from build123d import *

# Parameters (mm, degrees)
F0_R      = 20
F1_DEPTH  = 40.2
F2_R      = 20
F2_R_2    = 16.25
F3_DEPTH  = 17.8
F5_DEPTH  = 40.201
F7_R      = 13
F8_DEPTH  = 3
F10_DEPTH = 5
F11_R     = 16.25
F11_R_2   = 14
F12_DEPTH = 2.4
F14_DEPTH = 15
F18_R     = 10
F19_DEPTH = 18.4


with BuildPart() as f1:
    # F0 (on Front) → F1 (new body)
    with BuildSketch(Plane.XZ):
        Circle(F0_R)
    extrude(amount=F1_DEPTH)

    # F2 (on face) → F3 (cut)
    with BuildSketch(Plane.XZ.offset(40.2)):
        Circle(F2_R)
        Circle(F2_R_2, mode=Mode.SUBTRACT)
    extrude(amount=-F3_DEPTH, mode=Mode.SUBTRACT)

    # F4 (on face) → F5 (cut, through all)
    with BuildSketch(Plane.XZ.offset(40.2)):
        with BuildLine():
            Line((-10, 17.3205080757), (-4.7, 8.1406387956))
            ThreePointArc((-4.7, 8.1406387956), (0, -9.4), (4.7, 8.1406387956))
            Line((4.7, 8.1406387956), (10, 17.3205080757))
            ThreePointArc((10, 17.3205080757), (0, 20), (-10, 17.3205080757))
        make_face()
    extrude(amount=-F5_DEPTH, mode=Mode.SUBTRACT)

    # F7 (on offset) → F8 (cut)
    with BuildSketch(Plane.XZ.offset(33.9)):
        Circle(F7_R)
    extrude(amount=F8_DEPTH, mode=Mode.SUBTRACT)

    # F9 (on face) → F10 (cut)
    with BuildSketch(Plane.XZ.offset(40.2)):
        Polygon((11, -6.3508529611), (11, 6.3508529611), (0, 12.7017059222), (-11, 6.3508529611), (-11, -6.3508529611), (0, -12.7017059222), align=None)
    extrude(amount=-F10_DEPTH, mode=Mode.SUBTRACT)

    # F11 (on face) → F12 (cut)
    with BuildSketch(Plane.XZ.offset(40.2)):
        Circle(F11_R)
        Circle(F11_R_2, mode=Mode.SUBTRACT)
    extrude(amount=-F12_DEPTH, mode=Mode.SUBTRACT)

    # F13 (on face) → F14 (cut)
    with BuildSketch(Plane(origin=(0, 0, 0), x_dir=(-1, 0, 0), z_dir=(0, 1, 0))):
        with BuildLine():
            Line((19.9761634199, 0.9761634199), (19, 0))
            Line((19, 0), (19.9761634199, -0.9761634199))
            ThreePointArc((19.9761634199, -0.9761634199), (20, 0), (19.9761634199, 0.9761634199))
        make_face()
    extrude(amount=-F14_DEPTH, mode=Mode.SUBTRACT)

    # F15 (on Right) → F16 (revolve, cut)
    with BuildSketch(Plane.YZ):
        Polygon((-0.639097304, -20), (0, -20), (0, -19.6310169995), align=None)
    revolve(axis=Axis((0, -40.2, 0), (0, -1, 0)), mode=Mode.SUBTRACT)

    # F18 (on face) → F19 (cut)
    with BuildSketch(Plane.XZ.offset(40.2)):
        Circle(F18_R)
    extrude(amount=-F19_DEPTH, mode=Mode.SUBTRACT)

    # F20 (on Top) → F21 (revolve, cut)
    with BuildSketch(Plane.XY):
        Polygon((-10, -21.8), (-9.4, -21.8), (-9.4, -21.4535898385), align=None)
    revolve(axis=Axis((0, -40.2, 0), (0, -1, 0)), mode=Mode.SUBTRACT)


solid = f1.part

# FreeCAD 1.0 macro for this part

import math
import FreeCAD as App
import Part
import Sketcher
from FreeCAD import Vector
Q = App.Units.Quantity


def add_polygon(sketch, points):
    """Adds a closed chain of lines whose ends are joined by coincident constraints."""
    first, n = sketch.GeometryCount, len(points)
    for a, b in zip(points, points[1:] + points[:1]):
        sketch.addGeometry(Part.LineSegment(App.Vector(*a, 0), App.Vector(*b, 0)), False)
    for i in range(n):
        sketch.addConstraint(Sketcher.Constraint("Coincident", first + i, 2, first + (i + 1) % n, 1))

doc = App.newDocument("Part")
body = doc.addObject("PartDesign::Body", "Body")

# Sketch on XZ plane
sketch1 = body.newObject("Sketcher::SketchObject", "Sketch")
sketch1.AttachmentSupport = (doc.getObject("XZ_Plane"), [""])
sketch1.MapMode = "FlatFace"
sketch1.addGeometry(Part.Circle(Vector(0, 0, 0), Vector(0, 0, 1), 20), False)
sketch1.addConstraint([
    Sketcher.Constraint("Coincident", 0, 3, -1, 1),
    Sketcher.Constraint("Diameter", 0, 40.0),
])
pad1 = body.newObject("PartDesign::Pad", "Pad")
pad1.Profile = sketch1
pad1.Length = 40.2

# Sketch on XZ plane
sketch2 = body.newObject("Sketcher::SketchObject", "Sketch001")
sketch2.AttachmentSupport = (doc.getObject("XZ_Plane"), [""])
sketch2.MapMode = "FlatFace"
sketch2.AttachmentOffset = App.Placement(Vector(0, 0, 40.2), App.Rotation())
sketch2.addGeometry([
    Part.Circle(Vector(0, 0, 0), Vector(0, 0, 1), 20),
    Part.Circle(Vector(0, 0, 0), Vector(0, 0, 1), 16),
], False)
sketch2.addConstraint([
    Sketcher.Constraint("Coincident", 0, 3, -1, 1),
    Sketcher.Constraint("Coincident", 1, 3, -1, 1),
    Sketcher.Constraint("Diameter", 0, 40.0),
    Sketcher.Constraint("Diameter", 1, 32.5),
])
pocket1 = body.newObject("PartDesign::Pocket", "Pocket")
pocket1.Profile = sketch2
pocket1.Length = 17.8

# Sketch on XZ plane
sketch3 = body.newObject("Sketcher::SketchObject", "Sketch002")
sketch3.AttachmentSupport = (doc.getObject("XZ_Plane"), [""])
sketch3.MapMode = "FlatFace"
sketch3.AttachmentOffset = App.Placement(Vector(0, 0, 40.2), App.Rotation())
sketch3.addGeometry([
    Part.LineSegment(Vector(-10, 17, 0), Vector(-5, 8, 0)),
    Part.ArcOfCircle(Part.Circle(Vector(0, 0, 0), Vector(0, 0, 1), 9), math.radians(120), math.radians(420)),
    Part.LineSegment(Vector(5, 8, 0), Vector(10, 17, 0)),
    Part.ArcOfCircle(Part.Circle(Vector(0, 0, 0), Vector(0, 0, 1), 20), math.radians(60), math.radians(120)),
], False)
sketch3.addConstraint([
    Sketcher.Constraint("Coincident", 0, 2, 1, 1),
    Sketcher.Constraint("Coincident", 1, 2, 2, 1),
    Sketcher.Constraint("Coincident", 2, 2, 3, 1),
    Sketcher.Constraint("Coincident", 3, 2, 0, 1),
    Sketcher.Constraint("Coincident", 1, 3, -1, 1),
    Sketcher.Constraint("Coincident", 3, 3, -1, 1),
    Sketcher.Constraint("Horizontal", 0, 2, 1, 2),
    Sketcher.Constraint("Horizontal", 2, 2, 3, 2),
    Sketcher.Constraint("Radius", 3, 20.0),
    Sketcher.Constraint("Radius", 1, 9.4),
    Sketcher.Constraint("Angle", 0, Q("-60 deg")),
    Sketcher.Constraint("DistanceX", -1, 1, 2, 2, 10.0),
])
pocket2 = body.newObject("PartDesign::Pocket", "Pocket001")
pocket2.Profile = sketch3
pocket2.Type = "ThroughAll"

# Sketch on XZ plane
sketch4 = body.newObject("Sketcher::SketchObject", "Sketch003")
sketch4.AttachmentSupport = (doc.getObject("XZ_Plane"), [""])
sketch4.MapMode = "FlatFace"
sketch4.AttachmentOffset = App.Placement(Vector(0, 0, 33.9), App.Rotation())
sketch4.addGeometry(Part.Circle(Vector(0, 0, 0), Vector(0, 0, 1), 13), False)
sketch4.addConstraint([
    Sketcher.Constraint("Coincident", 0, 3, -1, 1),
    Sketcher.Constraint("Diameter", 0, 26.0),
])
pocket3 = body.newObject("PartDesign::Pocket", "Pocket002")
pocket3.Profile = sketch4
pocket3.Length = 3
pocket3.Reversed = True

# Sketch on XZ plane
sketch5 = body.newObject("Sketcher::SketchObject", "Sketch004")
sketch5.AttachmentSupport = (doc.getObject("XZ_Plane"), [""])
sketch5.MapMode = "FlatFace"
sketch5.AttachmentOffset = App.Placement(Vector(0, 0, 40.2), App.Rotation())
add_polygon(sketch5, [(11, -6), (11, 6), (0, 13), (-11, 6), (-11, -6), (0, -13)])  # lines 0-5
sketch5.addConstraint([
    Sketcher.Constraint("Vertical", 0),
    Sketcher.Constraint("Vertical", 3),
    Sketcher.Constraint("Symmetric", 0, 2, 3, 2, -1, 1),
    Sketcher.Constraint("Symmetric", 1, 2, 4, 2, -1, 1),
    Sketcher.Constraint("PointOnObject", 1, 2, -2),
    Sketcher.Constraint("Parallel", 2, 5),
    Sketcher.Constraint("Horizontal", 0, 2, 2, 2),
    Sketcher.Constraint("Angle", 1, Q("150 deg")),
    Sketcher.Constraint("DistanceX", -1, 1, 0, 2, 11.0),
    Sketcher.Constraint("DistanceY", 0, 1, 0, 2, 12.701706),
])
pocket4 = body.newObject("PartDesign::Pocket", "Pocket003")
pocket4.Profile = sketch5
pocket4.Length = 5

# Sketch on XZ plane
sketch6 = body.newObject("Sketcher::SketchObject", "Sketch005")
sketch6.AttachmentSupport = (doc.getObject("XZ_Plane"), [""])
sketch6.MapMode = "FlatFace"
sketch6.AttachmentOffset = App.Placement(Vector(0, 0, 40.2), App.Rotation())
sketch6.addGeometry([
    Part.Circle(Vector(0, 0, 0), Vector(0, 0, 1), 16),
    Part.Circle(Vector(0, 0, 0), Vector(0, 0, 1), 14),
], False)
sketch6.addConstraint([
    Sketcher.Constraint("Coincident", 0, 3, -1, 1),
    Sketcher.Constraint("Coincident", 1, 3, -1, 1),
    Sketcher.Constraint("Diameter", 1, 28.0),
    Sketcher.Constraint("Diameter", 0, 32.5),
])
pocket5 = body.newObject("PartDesign::Pocket", "Pocket004")
pocket5.Profile = sketch6
pocket5.Length = 2.4

# Sketch on XZ plane
sketch7 = body.newObject("Sketcher::SketchObject", "Sketch006")
sketch7.AttachmentSupport = (doc.getObject("XZ_Plane"), [""])
sketch7.MapMode = "FlatFace"
sketch7.addGeometry([
    Part.LineSegment(Vector(-20, 1, 0), Vector(-19, 0, 0)),
    Part.LineSegment(Vector(-19, 0, 0), Vector(-20, -1, 0)),
    Part.ArcOfCircle(Part.Circle(Vector(0, 0, 0), Vector(0, 0, 1), 20), math.radians(177.2), math.radians(182.8)),
], False)
sketch7.addConstraint([
    Sketcher.Constraint("Coincident", 0, 2, 1, 1),
    Sketcher.Constraint("Coincident", 1, 2, 2, 2),
    Sketcher.Constraint("Coincident", 2, 1, 0, 1),
    Sketcher.Constraint("Coincident", 2, 3, -1, 1),
    Sketcher.Constraint("PointOnObject", 0, 2, -1),
    Sketcher.Constraint("Perpendicular", 0, 1),
    Sketcher.Constraint("Vertical", 1, 2, 2, 1),
    Sketcher.Constraint("Radius", 2, 20.0),
    Sketcher.Constraint("DistanceX", 0, 2, -1, 1, 19.0),
])
pocket6 = body.newObject("PartDesign::Pocket", "Pocket005")
pocket6.Profile = sketch7
pocket6.Length = 15
pocket6.Reversed = True

# Sketch on YZ plane
sketch8 = body.newObject("Sketcher::SketchObject", "Sketch007")
sketch8.AttachmentSupport = (doc.getObject("YZ_Plane"), [""])
sketch8.MapMode = "FlatFace"
add_polygon(sketch8, [(-0.64, -20), (0, -20), (0, -19.63)])  # lines 0-2
sketch8.addConstraint([
    Sketcher.Constraint("Horizontal", 0),
    Sketcher.Constraint("Vertical", 1),
    Sketcher.Constraint("PointOnObject", 0, 2, -2),
    Sketcher.Constraint("Angle", 2, Q("-150 deg")),
    Sketcher.Constraint("DistanceY", 0, 2, -1, 1, 20.0),
    Sketcher.Constraint("DistanceX", 0, 1, 0, 2, 0.639097),
])
groove = body.newObject("PartDesign::Groove", "Groove")
groove.Profile = sketch8
groove.ReferenceAxis = (sketch8, ["H_Axis"])
groove.Angle = 360

# Sketch on XZ plane
sketch9 = body.newObject("Sketcher::SketchObject", "Sketch008")
sketch9.AttachmentSupport = (doc.getObject("XZ_Plane"), [""])
sketch9.MapMode = "FlatFace"
sketch9.AttachmentOffset = App.Placement(Vector(0, 0, 40.2), App.Rotation())
sketch9.addGeometry(Part.Circle(Vector(0, 0, 0), Vector(0, 0, 1), 10), False)
sketch9.addConstraint([
    Sketcher.Constraint("Coincident", 0, 3, -1, 1),
    Sketcher.Constraint("Diameter", 0, 20.0),
])
pocket7 = body.newObject("PartDesign::Pocket", "Pocket006")
pocket7.Profile = sketch9
pocket7.Length = 18.4

# Sketch on XY plane
sketch10 = body.newObject("Sketcher::SketchObject", "Sketch009")
sketch10.AttachmentSupport = (doc.getObject("XY_Plane"), [""])
sketch10.MapMode = "FlatFace"
add_polygon(sketch10, [(-10, -21.8), (-9.4, -21.8), (-9.4, -21.45)])  # lines 0-2
sketch10.addConstraint([
    Sketcher.Constraint("Horizontal", 0),
    Sketcher.Constraint("Vertical", 1),
    Sketcher.Constraint("Angle", 2, Q("-150 deg")),
    Sketcher.Constraint("DistanceX", 0, 1, 0, 2, 0.6),
    Sketcher.Constraint("DistanceX", 2, 2, -1, 1, 10.0),
    Sketcher.Constraint("DistanceY", 0, 2, -1, 1, 21.8),
])
groove2 = body.newObject("PartDesign::Groove", "Groove001")
groove2.Profile = sketch10
groove2.ReferenceAxis = (sketch10, ["V_Axis"])
groove2.Angle = 360

doc.recompute()
